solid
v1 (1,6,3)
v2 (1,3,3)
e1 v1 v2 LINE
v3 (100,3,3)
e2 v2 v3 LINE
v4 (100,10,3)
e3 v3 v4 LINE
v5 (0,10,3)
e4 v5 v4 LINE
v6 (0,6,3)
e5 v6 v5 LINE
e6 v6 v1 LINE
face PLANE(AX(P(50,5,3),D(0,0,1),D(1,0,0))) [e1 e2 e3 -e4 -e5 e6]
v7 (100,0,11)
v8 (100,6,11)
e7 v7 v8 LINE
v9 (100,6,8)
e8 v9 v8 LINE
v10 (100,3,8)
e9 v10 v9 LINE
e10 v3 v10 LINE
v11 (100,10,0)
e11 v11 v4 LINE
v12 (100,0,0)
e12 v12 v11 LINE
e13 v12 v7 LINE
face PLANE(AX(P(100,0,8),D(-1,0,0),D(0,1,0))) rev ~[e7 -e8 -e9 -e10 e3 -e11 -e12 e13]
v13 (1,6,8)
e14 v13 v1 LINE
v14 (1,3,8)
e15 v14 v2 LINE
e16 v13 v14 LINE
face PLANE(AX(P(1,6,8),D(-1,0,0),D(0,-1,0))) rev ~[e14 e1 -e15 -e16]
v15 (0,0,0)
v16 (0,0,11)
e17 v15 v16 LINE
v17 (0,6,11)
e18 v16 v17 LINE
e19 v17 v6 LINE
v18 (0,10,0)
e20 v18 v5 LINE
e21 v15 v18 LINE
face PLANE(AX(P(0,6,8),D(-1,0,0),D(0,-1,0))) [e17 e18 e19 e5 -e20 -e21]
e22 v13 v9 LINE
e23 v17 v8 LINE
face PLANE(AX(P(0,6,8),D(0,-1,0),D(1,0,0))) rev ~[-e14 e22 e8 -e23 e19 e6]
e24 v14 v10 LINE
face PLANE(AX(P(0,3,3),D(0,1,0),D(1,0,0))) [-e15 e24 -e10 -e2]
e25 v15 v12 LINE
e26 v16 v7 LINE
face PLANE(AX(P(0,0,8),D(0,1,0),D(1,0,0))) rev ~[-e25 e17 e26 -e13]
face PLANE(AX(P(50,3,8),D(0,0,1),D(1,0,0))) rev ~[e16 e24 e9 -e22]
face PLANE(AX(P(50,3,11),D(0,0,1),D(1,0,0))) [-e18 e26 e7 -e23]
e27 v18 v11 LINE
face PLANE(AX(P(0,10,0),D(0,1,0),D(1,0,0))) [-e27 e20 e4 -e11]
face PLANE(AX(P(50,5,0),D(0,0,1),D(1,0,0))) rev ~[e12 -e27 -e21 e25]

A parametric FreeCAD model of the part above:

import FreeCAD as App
import Part
import Sketcher
from FreeCAD import Vector


def add_polygon(sketch, points):
    """Adds a closed chain of lines whose ends are joined by coincident constraints."""
    first, n = sketch.GeometryCount, len(points)
    for a, b in zip(points, points[1:] + points[:1]):
        sketch.addGeometry(Part.LineSegment(App.Vector(*a, 0), App.Vector(*b, 0)), False)
    for i in range(n):
        sketch.addConstraint(Sketcher.Constraint("Coincident", first + i, 2, first + (i + 1) % n, 1))

doc = App.newDocument("Part")
body = doc.addObject("PartDesign::Body", "Body")

sketch1 = doc.addObject("Sketcher::SketchObject", "Sketch")
body.addObject(sketch1)
sketch1.AttachmentSupport = (doc.XY_Plane, [""])
sketch1.MapMode = "FlatFace"
add_polygon(sketch1, [(0, 10), (0, 0), (100, 0), (100, 10)])
sketch1.addConstraint([
    Sketcher.Constraint("Vertical", 0),
    Sketcher.Constraint("Horizontal", 1),
    Sketcher.Constraint("Vertical", 2),
    Sketcher.Constraint("Horizontal", 3),
    Sketcher.Constraint("Coincident", 0, 2, -1, 1),
    Sketcher.Constraint("DistanceX", 1, 1, 1, 2, 100.0),
    Sketcher.Constraint("DistanceY", 0, 2, 0, 1, 10.0),
])
pad1 = doc.addObject("PartDesign::Pad", "Pad")
body.addObject(pad1)
pad1.Profile = sketch1
pad1.Length = 3

sketch2 = doc.addObject("Sketcher::SketchObject", "Sketch001")
body.addObject(sketch2)
sketch2.AttachmentSupport = (doc.XY_Plane, [""])
sketch2.MapMode = "FlatFace"
sketch2.AttachmentOffset = App.Placement(Vector(0, 0, 3), App.Rotation())
add_polygon(sketch2, [(0, 3), (0, 0), (100, 0), (100, 3)])
sketch2.addConstraint([
    Sketcher.Constraint("Vertical", 0),
    Sketcher.Constraint("Horizontal", 1),
    Sketcher.Constraint("Vertical", 2),
    Sketcher.Constraint("Horizontal", 3),
    Sketcher.Constraint("Coincident", 0, 2, -1, 1),
    Sketcher.Constraint("DistanceX", 1, 1, 1, 2, 100.0),
    Sketcher.Constraint("DistanceY", 0, 2, 0, 1, 3.0),
])
pad2 = doc.addObject("PartDesign::Pad", "Pad001")
body.addObject(pad2)
pad2.Profile = sketch2
pad2.Length = 5

sketch3 = doc.addObject("Sketcher::SketchObject", "Sketch002")
body.addObject(sketch3)
sketch3.AttachmentSupport = (doc.XY_Plane, [""])
sketch3.MapMode = "FlatFace"
sketch3.AttachmentOffset = App.Placement(Vector(0, 0, 8), App.Rotation())
add_polygon(sketch3, [(0, 6), (0, 0), (100, 0), (100, 6)])
sketch3.addConstraint([
    Sketcher.Constraint("Vertical", 0),
    Sketcher.Constraint("Horizontal", 1),
    Sketcher.Constraint("Vertical", 2),
    Sketcher.Constraint("Horizontal", 3),
    Sketcher.Constraint("Coincident", 0, 2, -1, 1),
    Sketcher.Constraint("DistanceX", 1, 1, 1, 2, 100.0),
    Sketcher.Constraint("DistanceY", 0, 2, 0, 1, 6.0),
])
pad3 = doc.addObject("PartDesign::Pad", "Pad002")
body.addObject(pad3)
pad3.Profile = sketch3
pad3.Length = 3

sketch4 = doc.addObject("Sketcher::SketchObject", "Sketch003")
body.addObject(sketch4)
sketch4.AttachmentSupport = (doc.XY_Plane, [""])
sketch4.MapMode = "FlatFace"
sketch4.AttachmentOffset = App.Placement(Vector(0, 0, 8), App.Rotation())
add_polygon(sketch4, [(0, 3), (0, 6), (1, 6), (1, 3)])
sketch4.addConstraint([
    Sketcher.Constraint("Vertical", 0),
    Sketcher.Constraint("Horizontal", 1),
    Sketcher.Constraint("Vertical", 2),
    Sketcher.Constraint("Horizontal", 3),
    Sketcher.Constraint("PointOnObject", 0, 2, -2),
    Sketcher.Constraint("DistanceX", 1, 1, 1, 2, 1.0),
    Sketcher.Constraint("DistanceY", 0, 1, 0, 2, 3.0),
    Sketcher.Constraint("DistanceY", -1, 1, 0, 2, 6.0),
])
pad4 = doc.addObject("PartDesign::Pad", "Pad003")
body.addObject(pad4)
pad4.Profile = sketch4
pad4.Length = 5
pad4.Reversed = True

doc.recompute()
